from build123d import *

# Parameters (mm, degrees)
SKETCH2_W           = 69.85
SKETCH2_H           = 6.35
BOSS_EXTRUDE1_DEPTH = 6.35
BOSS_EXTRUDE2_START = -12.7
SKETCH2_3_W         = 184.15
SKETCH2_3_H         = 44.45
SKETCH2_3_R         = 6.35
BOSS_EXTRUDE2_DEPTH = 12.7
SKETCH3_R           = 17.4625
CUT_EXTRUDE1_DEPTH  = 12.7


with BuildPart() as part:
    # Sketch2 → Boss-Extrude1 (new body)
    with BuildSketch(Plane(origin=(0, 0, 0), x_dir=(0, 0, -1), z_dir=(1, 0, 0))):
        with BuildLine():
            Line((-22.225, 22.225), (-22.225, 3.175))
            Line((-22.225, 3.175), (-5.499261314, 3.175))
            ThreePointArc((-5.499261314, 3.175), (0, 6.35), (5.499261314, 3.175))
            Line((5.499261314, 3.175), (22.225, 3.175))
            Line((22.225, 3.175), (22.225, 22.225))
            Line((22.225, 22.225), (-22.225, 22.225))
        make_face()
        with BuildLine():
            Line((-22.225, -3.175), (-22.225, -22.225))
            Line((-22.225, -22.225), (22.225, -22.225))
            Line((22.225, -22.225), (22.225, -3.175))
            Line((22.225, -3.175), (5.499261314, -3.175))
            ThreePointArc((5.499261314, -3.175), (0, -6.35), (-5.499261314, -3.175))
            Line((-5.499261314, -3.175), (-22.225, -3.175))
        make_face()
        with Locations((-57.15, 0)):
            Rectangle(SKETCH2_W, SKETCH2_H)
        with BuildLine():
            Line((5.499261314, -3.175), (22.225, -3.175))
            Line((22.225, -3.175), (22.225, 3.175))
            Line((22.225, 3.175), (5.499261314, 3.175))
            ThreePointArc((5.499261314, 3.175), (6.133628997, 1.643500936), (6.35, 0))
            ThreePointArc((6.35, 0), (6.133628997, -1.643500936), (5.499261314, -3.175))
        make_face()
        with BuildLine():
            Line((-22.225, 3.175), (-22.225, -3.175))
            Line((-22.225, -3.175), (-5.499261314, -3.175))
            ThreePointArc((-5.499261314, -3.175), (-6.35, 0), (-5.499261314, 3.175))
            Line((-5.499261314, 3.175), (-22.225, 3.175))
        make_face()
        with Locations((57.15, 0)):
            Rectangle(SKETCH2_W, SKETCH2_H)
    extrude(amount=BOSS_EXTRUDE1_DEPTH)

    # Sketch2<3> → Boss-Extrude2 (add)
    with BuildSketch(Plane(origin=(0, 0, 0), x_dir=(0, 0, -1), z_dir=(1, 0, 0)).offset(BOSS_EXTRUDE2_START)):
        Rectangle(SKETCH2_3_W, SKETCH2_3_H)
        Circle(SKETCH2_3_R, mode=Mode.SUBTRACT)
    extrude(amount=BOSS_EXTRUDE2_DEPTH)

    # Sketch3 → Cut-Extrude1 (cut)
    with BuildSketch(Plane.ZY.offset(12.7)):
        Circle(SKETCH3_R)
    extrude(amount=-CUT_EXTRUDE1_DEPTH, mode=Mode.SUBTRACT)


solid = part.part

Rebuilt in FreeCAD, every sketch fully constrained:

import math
import FreeCAD as App
import Part
import Sketcher
Q = App.Units.Quantity


def add_polygon(sketch, points):
    """Adds a closed chain of lines whose ends are joined by coincident constraints."""
    first, n = sketch.GeometryCount, len(points)
    for a, b in zip(points, points[1:] + points[:1]):
        sketch.addGeometry(Part.LineSegment(App.Vector(*a, 0), App.Vector(*b, 0)), False)
    for i in range(n):
        sketch.addConstraint(Sketcher.Constraint("Coincident", first + i, 2, first + (i + 1) % n, 1))

doc = App.newDocument("Part")
body = doc.addObject("PartDesign::Body", "Body")

# Sketch on YZ plane
sketch1 = body.newObject("Sketcher::SketchObject", "Sketch")
sketch1.AttachmentSupport = (doc.getObject("YZ_Plane"), [""])
sketch1.MapMode = "FlatFace"
add_polygon(sketch1, [(22.225, 22.225), (3.175, 22.225), (3.175, 92.075), (-3.175, 92.075), (-3.175, 22.225), (-22.225, 22.225), (-22.225, -22.225), (-3.175, -22.225), (-3.175, -92.075), (3.175, -92.075), (3.175, -22.225), (22.225, -22.225)])  # lines 0-11
sketch1.addGeometry(Part.ArcOfCircle(Part.Circle(App.Vector(0, 0, 0), App.Vector(0, 0, 1), 6.35), math.radians(-60), math.radians(60)), False)  # 12
sketch1.addGeometry(Part.ArcOfCircle(Part.Circle(App.Vector(0, 0, 0), App.Vector(0, 0, 1), 6.35), math.radians(-90), math.radians(-60)), False)  # 13
sketch1.addGeometry(Part.ArcOfCircle(Part.Circle(App.Vector(0, 0, 0), App.Vector(0, 0, 1), 6.35), math.radians(-120), math.radians(-90)), False)  # 14
sketch1.addGeometry(Part.ArcOfCircle(Part.Circle(App.Vector(0, 0, 0), App.Vector(0, 0, 1), 6.35), math.radians(120), math.radians(240)), False)  # 15
sketch1.addGeometry(Part.ArcOfCircle(Part.Circle(App.Vector(0, 0, 0), App.Vector(0, 0, 1), 6.35), math.radians(60), math.radians(120)), False)  # 16
sketch1.addConstraint([
    Sketcher.Constraint("Tangent", 12, 1, 13, 2),
    Sketcher.Constraint("Tangent", 13, 1, 14, 2),
    Sketcher.Constraint("Tangent", 14, 1, 15, 2),
    Sketcher.Constraint("Tangent", 15, 1, 16, 2),
    Sketcher.Constraint("Tangent", 16, 1, 12, 2),
    Sketcher.Constraint("Horizontal", 0),
    Sketcher.Constraint("Vertical", 1),
    Sketcher.Constraint("Horizontal", 2),
    Sketcher.Constraint("Vertical", 3),
    Sketcher.Constraint("Horizontal", 4),
    Sketcher.Constraint("Vertical", 5),
    Sketcher.Constraint("Horizontal", 6),
    Sketcher.Constraint("Vertical", 7),
    Sketcher.Constraint("Horizontal", 8),
    Sketcher.Constraint("Vertical", 9),
    Sketcher.Constraint("Horizontal", 10),
    Sketcher.Constraint("Vertical", 11),
    Sketcher.Constraint("Coincident", 12, 3, -1, 1),
    Sketcher.Constraint("Coincident", 14, 3, -1, 1),
    Sketcher.Constraint("Symmetric", 0, 2, 6, 2, -1, 1),
    Sketcher.Constraint("Symmetric", 2, 2, 8, 2, -1, 1),
    Sketcher.Constraint("Symmetric", 4, 2, 10, 2, -1, 1),
    Sketcher.Constraint("Symmetric", 0, 2, 3, 2, -2),
    Sketcher.Constraint("PointOnObject", 13, 1, -2),
    Sketcher.Constraint("Horizontal", 12, 1, 14, 1),
    Sketcher.Constraint("Horizontal", 15, 1, 16, 1),
    Sketcher.Constraint("Vertical", 9, 2, 12, 1),
    Sketcher.Constraint("Vertical", 14, 1, 15, 1),
    Sketcher.Constraint("Radius", 12, Q("0.25 in")),
    Sketcher.Constraint("DistanceX", 4, 2, 0, 2, Q("1 in")),
    Sketcher.Constraint("DistanceX", 0, 2, 0, 1, Q("0.75 in")),
    Sketcher.Constraint("DistanceY", 1, 1, 1, 2, Q("2.75 in")),
    Sketcher.Constraint("DistanceY", 5, 2, 5, 1, Q("1.75 in")),
])
pad1 = body.newObject("PartDesign::Pad", "Pad")
pad1.Profile = sketch1
pad1.Length = Q("0.25 in")

# Sketch on YZ plane
sketch2 = body.newObject("Sketcher::SketchObject", "Sketch001")
sketch2.AttachmentSupport = (doc.getObject("YZ_Plane"), [""])
sketch2.MapMode = "FlatFace"
sketch2.AttachmentOffset = App.Placement(App.Vector(0, 0, -0.5 * 25.4), App.Rotation())
add_polygon(sketch2, [(22.225, 92.075), (-22.225, 92.075), (-22.225, -92.075), (22.225, -92.075)])  # lines 0-3
sketch2.addGeometry(Part.Circle(App.Vector(0, 0, 0), App.Vector(0, 0, 1), 6.35), False)  # 4
sketch2.addConstraint([
    Sketcher.Constraint("Horizontal", 0),
    Sketcher.Constraint("Vertical", 1),
    Sketcher.Constraint("Horizontal", 2),
    Sketcher.Constraint("Vertical", 3),
    Sketcher.Constraint("Coincident", 4, 3, -1, 1),
    Sketcher.Constraint("Symmetric", 0, 2, 2, 2, -1, 1),
    Sketcher.Constraint("Diameter", 4, Q("0.5 in")),
    Sketcher.Constraint("DistanceX", 0, 2, 0, 1, Q("1.75 in")),
    Sketcher.Constraint("DistanceY", 1, 2, 1, 1, Q("7.25 in")),
])
pad2 = body.newObject("PartDesign::Pad", "Pad001")
pad2.Profile = sketch2
pad2.Length = Q("0.5 in")

# Sketch on YZ plane
sketch3 = body.newObject("Sketcher::SketchObject", "Sketch002")
sketch3.AttachmentSupport = (doc.getObject("YZ_Plane"), [""])
sketch3.MapMode = "FlatFace"
sketch3.AttachmentOffset = App.Placement(App.Vector(0, 0, -0.5 * 25.4), App.Rotation())
sketch3.addGeometry(Part.Circle(App.Vector(0, 0, 0), App.Vector(0, 0, 1), 17.4625), False)
sketch3.addConstraint([
    Sketcher.Constraint("Coincident", 0, 3, -1, 1),
    Sketcher.Constraint("Diameter", 0, Q("1.375 in")),
])
pocket1 = body.newObject("PartDesign::Pocket", "Pocket")
pocket1.Profile = sketch3
pocket1.Length = Q("0.5 in")
pocket1.Reversed = True

doc.recompute()
